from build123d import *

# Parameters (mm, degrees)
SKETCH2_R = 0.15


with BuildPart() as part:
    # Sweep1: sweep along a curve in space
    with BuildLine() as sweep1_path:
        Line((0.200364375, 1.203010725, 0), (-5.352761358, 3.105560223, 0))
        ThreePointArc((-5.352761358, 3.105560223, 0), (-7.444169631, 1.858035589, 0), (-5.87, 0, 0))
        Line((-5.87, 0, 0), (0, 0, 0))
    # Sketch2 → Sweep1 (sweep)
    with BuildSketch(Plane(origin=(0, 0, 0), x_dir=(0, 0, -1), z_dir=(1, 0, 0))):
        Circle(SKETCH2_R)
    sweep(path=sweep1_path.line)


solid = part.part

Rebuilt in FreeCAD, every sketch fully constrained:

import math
import FreeCAD as App
import Part
import Sketcher

doc = App.newDocument("Part")
params = doc.addObject("Spreadsheet::Sheet", "Params")
for row, (alias, value) in enumerate([
    ("sketch1_diameter", "0.3 mm"),
    ("sketch2_width", "5.87 mm"),
    ("sketch2_length", "5.87 mm"),
], start=1):
    params.set(f"A{row}", alias)
    params.set(f"B{row}", "=" + value)
    params.setAlias(f"B{row}", alias)

body = doc.addObject("PartDesign::Body", "Body")

# Sketch on YZ plane
sketch1 = body.newObject("Sketcher::SketchObject", "Sketch")
sketch1.AttachmentSupport = (doc.getObject("YZ_Plane"), [""])
sketch1.MapMode = "FlatFace"
sketch1.addGeometry(Part.Circle(App.Vector(0, 0, 0), App.Vector(0, 0, 1), 0.15), False)
sketch1.addConstraint([
    Sketcher.Constraint("Coincident", 0, 3, -1, 1),
    Sketcher.Constraint("Diameter", 0, 0.3),
])
sketch1.setExpression("Constraints[1]", "Params.sketch1_diameter")

# Sketch on XY plane
sketch2 = body.newObject("Sketcher::SketchObject", "Sketch001")
sketch2.AttachmentSupport = (doc.getObject("XY_Plane"), [""])
sketch2.MapMode = "FlatFace"
sketch2.addGeometry([
    Part.LineSegment(App.Vector(0.200364, 1.203011, 0), App.Vector(-5.352761, 3.10556, 0)),
    Part.ArcOfCircle(Part.Circle(App.Vector(-5.87, 1.595854, 0), App.Vector(0, 0, 1), 1.595854), math.radians(71.088091), math.radians(270)),
    Part.LineSegment(App.Vector(-5.87, 0, 0), App.Vector(0, 0, 0)),
], False)
sketch2.addConstraint([
    Sketcher.Constraint("Tangent", 0, 2, 1, 1),
    Sketcher.Constraint("Tangent", 1, 2, 2, 1),
    Sketcher.Constraint("Horizontal", 2),
    Sketcher.Constraint("Coincident", 2, 2, -1, 1),
    Sketcher.Constraint("DistanceX", 2, 1, 2, 2, 5.87),
    Sketcher.Constraint("Distance", 0, 5.87),
    Sketcher.Constraint("Radius", 1, 1.595854),
    Sketcher.Constraint("DistanceY", -1, 1, 0, 1, 1.203011),
])
sketch2.setExpression("Constraints[4]", "Params.sketch2_width")
sketch2.setExpression("Constraints[5]", "Params.sketch2_length")
doc.recompute()

additivepipe = body.newObject("PartDesign::AdditivePipe", "AdditivePipe")
additivepipe.Profile = sketch1
additivepipe.Spine = (sketch2, ["Edge1", "Edge2", "Edge3"])

doc.recompute()
